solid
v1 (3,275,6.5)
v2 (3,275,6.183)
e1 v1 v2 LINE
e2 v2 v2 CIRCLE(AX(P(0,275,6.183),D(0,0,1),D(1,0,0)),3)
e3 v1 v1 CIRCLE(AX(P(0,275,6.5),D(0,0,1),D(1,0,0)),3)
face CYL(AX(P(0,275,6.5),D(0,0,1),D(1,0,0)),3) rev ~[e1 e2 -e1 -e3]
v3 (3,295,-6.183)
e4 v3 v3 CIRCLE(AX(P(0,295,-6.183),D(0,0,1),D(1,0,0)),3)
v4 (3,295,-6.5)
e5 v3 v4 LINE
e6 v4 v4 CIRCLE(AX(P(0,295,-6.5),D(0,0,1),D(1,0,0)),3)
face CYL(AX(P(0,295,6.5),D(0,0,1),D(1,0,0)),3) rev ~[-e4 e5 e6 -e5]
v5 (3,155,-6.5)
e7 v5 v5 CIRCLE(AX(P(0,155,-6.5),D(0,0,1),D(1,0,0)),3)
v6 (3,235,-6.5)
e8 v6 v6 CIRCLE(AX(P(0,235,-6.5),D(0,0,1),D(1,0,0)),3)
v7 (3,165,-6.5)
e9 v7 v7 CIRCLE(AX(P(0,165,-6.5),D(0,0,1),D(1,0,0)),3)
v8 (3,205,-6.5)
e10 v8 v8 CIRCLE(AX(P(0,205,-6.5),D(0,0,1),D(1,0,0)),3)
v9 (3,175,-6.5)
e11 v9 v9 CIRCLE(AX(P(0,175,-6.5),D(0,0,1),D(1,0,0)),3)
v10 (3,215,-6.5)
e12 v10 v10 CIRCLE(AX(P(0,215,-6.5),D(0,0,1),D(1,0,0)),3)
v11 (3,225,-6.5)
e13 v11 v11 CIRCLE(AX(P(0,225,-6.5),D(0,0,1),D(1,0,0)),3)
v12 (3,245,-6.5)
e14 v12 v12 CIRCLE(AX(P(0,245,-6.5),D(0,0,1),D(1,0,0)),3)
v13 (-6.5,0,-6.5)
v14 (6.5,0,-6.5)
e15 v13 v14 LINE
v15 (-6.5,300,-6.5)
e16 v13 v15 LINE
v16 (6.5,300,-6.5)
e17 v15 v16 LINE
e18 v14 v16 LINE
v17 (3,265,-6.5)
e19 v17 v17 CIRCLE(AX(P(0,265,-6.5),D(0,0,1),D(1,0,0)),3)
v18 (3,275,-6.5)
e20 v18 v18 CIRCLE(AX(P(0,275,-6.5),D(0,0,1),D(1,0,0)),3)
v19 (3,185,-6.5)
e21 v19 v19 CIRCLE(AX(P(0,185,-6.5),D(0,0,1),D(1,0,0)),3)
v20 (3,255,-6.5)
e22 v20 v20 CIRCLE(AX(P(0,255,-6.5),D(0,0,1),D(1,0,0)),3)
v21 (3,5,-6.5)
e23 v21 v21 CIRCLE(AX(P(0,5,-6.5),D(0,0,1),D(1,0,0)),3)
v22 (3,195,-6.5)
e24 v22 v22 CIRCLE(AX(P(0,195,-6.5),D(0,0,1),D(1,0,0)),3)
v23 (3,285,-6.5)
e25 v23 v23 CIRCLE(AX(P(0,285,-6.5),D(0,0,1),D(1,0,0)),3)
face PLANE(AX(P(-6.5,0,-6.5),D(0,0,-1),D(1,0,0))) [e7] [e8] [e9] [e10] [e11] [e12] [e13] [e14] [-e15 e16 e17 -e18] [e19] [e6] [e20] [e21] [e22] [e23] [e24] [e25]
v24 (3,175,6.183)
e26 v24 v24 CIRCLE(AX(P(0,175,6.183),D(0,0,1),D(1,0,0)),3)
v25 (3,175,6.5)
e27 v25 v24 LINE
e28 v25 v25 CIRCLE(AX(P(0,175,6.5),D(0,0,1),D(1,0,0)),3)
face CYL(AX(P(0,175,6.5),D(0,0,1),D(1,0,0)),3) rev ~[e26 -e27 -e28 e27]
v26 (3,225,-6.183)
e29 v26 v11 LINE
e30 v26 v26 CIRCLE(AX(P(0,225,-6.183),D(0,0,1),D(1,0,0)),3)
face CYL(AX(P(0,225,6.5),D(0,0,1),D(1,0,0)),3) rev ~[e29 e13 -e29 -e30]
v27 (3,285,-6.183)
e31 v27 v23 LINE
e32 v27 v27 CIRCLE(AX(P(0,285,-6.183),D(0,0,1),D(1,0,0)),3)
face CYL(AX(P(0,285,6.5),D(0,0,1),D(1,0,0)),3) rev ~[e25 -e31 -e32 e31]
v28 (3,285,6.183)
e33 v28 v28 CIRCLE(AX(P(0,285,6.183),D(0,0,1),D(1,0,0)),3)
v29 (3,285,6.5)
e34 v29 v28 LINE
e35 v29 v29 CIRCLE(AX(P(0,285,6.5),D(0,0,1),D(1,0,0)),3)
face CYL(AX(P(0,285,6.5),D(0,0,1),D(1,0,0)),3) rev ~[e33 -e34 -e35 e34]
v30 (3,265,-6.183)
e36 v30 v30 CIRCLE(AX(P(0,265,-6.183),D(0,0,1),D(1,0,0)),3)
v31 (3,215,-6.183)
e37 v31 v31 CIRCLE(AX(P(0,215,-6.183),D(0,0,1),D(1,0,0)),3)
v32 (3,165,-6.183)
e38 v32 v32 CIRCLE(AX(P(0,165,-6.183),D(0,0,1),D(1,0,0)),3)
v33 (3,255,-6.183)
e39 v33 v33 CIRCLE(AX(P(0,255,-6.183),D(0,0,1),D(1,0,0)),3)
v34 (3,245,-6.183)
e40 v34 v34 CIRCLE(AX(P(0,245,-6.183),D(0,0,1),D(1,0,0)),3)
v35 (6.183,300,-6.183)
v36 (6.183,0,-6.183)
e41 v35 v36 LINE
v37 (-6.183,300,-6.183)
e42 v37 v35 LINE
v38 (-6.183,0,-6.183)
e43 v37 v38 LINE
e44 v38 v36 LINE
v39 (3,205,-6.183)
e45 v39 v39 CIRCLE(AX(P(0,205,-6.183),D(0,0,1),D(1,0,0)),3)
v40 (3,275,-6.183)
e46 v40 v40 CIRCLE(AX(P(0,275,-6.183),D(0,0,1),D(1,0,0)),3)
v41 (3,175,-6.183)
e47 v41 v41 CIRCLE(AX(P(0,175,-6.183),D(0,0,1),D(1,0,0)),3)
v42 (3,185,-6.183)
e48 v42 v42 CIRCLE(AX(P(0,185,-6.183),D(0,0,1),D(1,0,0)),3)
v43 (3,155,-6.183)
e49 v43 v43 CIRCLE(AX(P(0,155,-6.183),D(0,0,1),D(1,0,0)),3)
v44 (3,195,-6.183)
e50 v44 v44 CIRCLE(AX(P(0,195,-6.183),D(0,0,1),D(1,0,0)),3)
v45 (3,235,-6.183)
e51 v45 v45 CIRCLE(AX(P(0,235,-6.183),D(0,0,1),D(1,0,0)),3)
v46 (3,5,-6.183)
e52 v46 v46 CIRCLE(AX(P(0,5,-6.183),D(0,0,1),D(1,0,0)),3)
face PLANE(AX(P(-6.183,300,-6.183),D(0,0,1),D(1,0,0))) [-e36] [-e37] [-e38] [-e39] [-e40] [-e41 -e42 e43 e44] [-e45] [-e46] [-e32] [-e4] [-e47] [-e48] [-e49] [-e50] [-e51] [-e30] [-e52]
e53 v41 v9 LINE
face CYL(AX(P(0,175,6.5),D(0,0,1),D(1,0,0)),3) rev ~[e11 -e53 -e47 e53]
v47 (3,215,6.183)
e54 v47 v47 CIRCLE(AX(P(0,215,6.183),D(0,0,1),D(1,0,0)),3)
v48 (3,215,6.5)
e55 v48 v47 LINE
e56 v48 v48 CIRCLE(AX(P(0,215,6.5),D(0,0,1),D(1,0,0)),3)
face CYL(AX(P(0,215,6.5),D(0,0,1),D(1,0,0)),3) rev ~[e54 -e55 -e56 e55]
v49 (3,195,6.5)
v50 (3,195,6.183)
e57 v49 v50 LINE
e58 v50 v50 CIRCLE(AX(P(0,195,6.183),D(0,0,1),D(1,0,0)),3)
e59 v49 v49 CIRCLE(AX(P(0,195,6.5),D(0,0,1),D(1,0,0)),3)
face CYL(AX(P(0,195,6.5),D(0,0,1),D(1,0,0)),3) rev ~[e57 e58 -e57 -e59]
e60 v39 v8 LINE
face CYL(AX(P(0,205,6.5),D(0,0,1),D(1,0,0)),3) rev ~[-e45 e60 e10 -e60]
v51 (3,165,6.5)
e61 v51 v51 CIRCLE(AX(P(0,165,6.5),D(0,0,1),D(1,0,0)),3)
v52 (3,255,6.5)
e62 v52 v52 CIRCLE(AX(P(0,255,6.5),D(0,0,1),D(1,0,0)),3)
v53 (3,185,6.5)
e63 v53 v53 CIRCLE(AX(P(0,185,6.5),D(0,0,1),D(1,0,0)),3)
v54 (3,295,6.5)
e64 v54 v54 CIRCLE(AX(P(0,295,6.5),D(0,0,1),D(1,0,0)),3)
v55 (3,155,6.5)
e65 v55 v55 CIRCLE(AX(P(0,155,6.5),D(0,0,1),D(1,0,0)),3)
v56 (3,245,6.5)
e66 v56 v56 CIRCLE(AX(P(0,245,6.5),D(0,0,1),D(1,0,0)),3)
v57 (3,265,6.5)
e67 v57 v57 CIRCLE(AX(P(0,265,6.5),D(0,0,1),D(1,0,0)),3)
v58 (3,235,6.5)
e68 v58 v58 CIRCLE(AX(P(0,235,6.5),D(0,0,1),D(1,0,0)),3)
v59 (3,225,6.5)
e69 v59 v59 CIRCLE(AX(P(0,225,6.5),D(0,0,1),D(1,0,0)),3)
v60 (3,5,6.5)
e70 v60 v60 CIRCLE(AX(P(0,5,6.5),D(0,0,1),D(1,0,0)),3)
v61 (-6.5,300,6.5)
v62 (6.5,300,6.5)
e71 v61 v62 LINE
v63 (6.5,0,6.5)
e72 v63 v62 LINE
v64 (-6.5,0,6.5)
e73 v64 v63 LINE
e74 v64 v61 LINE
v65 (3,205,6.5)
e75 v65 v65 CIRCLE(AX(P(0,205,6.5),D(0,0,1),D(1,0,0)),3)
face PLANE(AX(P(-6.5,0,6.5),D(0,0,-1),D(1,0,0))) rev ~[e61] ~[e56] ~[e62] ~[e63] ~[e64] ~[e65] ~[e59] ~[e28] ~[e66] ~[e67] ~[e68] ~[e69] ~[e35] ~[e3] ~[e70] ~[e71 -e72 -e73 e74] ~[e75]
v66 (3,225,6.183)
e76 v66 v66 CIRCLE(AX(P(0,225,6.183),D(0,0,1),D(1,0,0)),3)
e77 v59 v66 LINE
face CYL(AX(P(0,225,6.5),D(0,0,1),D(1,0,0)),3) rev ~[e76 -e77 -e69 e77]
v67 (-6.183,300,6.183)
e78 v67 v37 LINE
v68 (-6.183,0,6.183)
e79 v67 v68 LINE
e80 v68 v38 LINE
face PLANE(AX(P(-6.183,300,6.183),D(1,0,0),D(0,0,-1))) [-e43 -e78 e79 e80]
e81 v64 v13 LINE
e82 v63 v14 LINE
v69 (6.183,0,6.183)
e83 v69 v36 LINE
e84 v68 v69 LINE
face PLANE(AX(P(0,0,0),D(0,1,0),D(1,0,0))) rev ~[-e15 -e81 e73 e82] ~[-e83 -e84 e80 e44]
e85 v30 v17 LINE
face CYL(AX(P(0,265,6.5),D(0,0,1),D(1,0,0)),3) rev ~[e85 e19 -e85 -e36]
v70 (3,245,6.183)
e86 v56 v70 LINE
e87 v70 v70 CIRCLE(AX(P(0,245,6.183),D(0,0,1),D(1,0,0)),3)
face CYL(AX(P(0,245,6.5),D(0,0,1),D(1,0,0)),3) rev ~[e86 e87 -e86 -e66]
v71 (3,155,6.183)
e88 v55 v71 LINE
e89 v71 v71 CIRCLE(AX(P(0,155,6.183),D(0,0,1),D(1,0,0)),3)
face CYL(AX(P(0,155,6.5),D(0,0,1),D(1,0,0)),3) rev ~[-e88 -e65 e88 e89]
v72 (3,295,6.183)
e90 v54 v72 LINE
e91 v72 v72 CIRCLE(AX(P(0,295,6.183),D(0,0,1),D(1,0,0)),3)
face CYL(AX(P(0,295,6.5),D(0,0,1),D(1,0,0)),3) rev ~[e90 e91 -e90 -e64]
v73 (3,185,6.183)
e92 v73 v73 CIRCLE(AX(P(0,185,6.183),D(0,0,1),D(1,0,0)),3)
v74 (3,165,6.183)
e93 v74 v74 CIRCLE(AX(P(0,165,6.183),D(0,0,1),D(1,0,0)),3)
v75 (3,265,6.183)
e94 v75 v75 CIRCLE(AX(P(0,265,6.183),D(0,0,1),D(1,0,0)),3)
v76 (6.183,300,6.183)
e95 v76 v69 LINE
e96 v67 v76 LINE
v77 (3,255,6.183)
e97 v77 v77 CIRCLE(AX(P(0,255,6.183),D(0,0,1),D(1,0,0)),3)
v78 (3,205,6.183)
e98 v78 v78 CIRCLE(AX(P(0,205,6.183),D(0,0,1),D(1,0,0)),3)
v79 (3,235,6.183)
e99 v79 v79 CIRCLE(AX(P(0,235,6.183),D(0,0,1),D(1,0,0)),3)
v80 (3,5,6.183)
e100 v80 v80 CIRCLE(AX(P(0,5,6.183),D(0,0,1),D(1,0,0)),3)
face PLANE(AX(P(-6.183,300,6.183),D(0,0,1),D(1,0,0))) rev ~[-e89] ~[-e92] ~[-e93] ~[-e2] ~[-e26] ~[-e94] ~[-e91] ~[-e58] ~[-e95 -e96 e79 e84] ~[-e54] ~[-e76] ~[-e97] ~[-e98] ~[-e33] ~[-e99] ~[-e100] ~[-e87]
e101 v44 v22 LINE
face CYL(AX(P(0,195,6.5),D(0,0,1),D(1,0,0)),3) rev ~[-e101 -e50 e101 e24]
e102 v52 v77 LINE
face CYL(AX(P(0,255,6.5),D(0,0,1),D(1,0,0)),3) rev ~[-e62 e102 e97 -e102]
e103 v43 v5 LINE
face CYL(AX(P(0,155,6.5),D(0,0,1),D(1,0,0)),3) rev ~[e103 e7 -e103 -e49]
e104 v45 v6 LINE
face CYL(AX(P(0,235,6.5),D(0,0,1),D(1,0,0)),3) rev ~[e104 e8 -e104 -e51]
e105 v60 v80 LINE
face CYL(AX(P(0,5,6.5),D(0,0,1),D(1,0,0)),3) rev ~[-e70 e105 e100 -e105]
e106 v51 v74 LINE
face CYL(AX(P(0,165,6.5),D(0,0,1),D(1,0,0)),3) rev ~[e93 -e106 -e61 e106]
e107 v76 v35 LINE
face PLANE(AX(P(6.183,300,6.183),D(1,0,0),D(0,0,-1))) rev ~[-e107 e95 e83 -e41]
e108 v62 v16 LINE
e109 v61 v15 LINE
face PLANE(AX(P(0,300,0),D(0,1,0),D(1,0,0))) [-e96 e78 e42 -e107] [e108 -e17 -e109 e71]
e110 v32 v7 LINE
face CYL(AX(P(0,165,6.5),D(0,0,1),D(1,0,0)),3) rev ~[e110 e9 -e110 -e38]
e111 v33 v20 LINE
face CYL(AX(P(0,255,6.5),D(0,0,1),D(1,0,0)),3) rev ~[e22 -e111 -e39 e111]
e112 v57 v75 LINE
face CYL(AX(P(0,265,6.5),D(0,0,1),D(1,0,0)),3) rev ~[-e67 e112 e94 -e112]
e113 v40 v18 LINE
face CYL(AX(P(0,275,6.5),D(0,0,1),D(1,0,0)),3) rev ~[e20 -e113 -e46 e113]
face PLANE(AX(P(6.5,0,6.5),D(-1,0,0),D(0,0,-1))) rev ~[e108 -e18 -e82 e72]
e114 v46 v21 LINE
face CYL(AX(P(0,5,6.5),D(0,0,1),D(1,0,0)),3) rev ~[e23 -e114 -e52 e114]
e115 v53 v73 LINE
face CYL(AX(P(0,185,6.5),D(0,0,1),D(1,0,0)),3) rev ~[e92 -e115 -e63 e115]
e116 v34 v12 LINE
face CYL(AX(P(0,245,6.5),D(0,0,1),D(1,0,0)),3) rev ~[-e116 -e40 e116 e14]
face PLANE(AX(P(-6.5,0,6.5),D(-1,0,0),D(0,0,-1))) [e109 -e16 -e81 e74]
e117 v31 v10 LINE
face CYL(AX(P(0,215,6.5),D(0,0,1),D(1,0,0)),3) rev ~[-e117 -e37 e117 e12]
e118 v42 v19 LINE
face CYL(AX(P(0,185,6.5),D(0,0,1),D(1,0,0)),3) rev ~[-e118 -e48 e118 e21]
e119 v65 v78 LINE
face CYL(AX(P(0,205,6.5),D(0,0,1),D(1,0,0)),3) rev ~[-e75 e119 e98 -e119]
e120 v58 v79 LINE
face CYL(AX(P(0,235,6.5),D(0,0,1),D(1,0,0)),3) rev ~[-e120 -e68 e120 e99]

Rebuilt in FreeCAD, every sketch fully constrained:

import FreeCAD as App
import Part
import Sketcher
from FreeCAD import Vector
Q = App.Units.Quantity

doc = App.newDocument("Part")
params = doc.addObject("Spreadsheet::Sheet", "Params")
for row, (alias, value) in enumerate([
    ("sketch1_width", "13 mm"),
    ("pad1_length", "300 mm"),
    ("pocket1_length", "500 mm"),
    ("sketch3_diameter", "6 mm"),
    ("pocket2_length", "500 mm"),
    ("sketch4_diameter", "6 mm"),
    ("pocket3_length", "500 mm"),
], start=1):
    params.set(f"A{row}", alias)
    params.set(f"B{row}", "=" + value)
    params.setAlias(f"B{row}", alias)

body = doc.addObject("PartDesign::Body", "Body")

# Sketch on XZ plane
sketch1 = body.newObject("Sketcher::SketchObject", "Sketch")
sketch1.AttachmentSupport = (doc.getObject("XZ_Plane"), [""])
sketch1.MapMode = "FlatFace"
sketch1.addGeometry([
    Part.LineSegment(Vector(-6, -6, 0), Vector(-6, 6, 0)),
    Part.LineSegment(Vector(-6, 6, 0), Vector(6, 6, 0)),
    Part.LineSegment(Vector(6, 6, 0), Vector(6, -6, 0)),
    Part.LineSegment(Vector(6, -6, 0), Vector(-6, -6, 0)),
], False)
sketch1.addConstraint([
    Sketcher.Constraint("Coincident", 0, 2, 1, 1),
    Sketcher.Constraint("Coincident", 1, 2, 2, 1),
    Sketcher.Constraint("Coincident", 2, 2, 3, 1),
    Sketcher.Constraint("Coincident", 3, 2, 0, 1),
    Sketcher.Constraint("Vertical", 0),
    Sketcher.Constraint("Horizontal", 1),
    Sketcher.Constraint("Vertical", 2),
    Sketcher.Constraint("Horizontal", 3),
    Sketcher.Constraint("Symmetric", 0, 2, 2, 2, -1, 1),
    Sketcher.Constraint("Equal", 3, 0),
    Sketcher.Constraint("DistanceX", 1, 1, 1, 2, Q("13 mm")),
])
sketch1.setExpression("Constraints[10]", "Params.sketch1_width")
pad1 = body.newObject("PartDesign::Pad", "Pad")
pad1.Profile = sketch1
pad1.setExpression("Length", "Params.pad1_length")
pad1.Reversed = True

# Sketch on XZ plane
sketch2 = body.newObject("Sketcher::SketchObject", "Sketch001")
sketch2.AttachmentSupport = (doc.getObject("XZ_Plane"), [""])
sketch2.MapMode = "FlatFace"
sketch2.AttachmentOffset = App.Placement(Vector(0, 0, -300), App.Rotation())
sketch2.addGeometry([
    Part.LineSegment(Vector(-6, -6, 0), Vector(-6, 6, 0)),
    Part.LineSegment(Vector(-6, 6, 0), Vector(6, 6, 0)),
    Part.LineSegment(Vector(6, 6, 0), Vector(6, -6, 0)),
    Part.LineSegment(Vector(6, -6, 0), Vector(-6, -6, 0)),
], False)
sketch2.addConstraint([
    Sketcher.Constraint("Coincident", 0, 2, 1, 1),
    Sketcher.Constraint("Coincident", 1, 2, 2, 1),
    Sketcher.Constraint("Coincident", 2, 2, 3, 1),
    Sketcher.Constraint("Coincident", 3, 2, 0, 1),
    Sketcher.Constraint("Vertical", 0),
    Sketcher.Constraint("Horizontal", 1),
    Sketcher.Constraint("Vertical", 2),
    Sketcher.Constraint("Horizontal", 3),
    Sketcher.Constraint("Symmetric", 0, 2, 2, 2, -1, 1),
    Sketcher.Constraint("Equal", 3, 0),
    Sketcher.Constraint("DistanceX", 1, 1, 1, 2, Q("12.366 mm")),
])
pocket1 = body.newObject("PartDesign::Pocket", "Pocket")
pocket1.Profile = sketch2
pocket1.setExpression("Length", "Params.pocket1_length")
pocket1.Reversed = True

# Sketch on XY plane
sketch3 = body.newObject("Sketcher::SketchObject", "Sketch002")
sketch3.AttachmentSupport = (doc.getObject("XY_Plane"), [""])
sketch3.MapMode = "FlatFace"
sketch3.AttachmentOffset = App.Placement(Vector(0, 0, 6.5), App.Rotation())
sketch3.addGeometry(Part.Circle(Vector(0, 5, 0), Vector(0, 0, 1), 3), False)
sketch3.addConstraint([
    Sketcher.Constraint("PointOnObject", 0, 3, -2),
    Sketcher.Constraint("Diameter", 0, Q("6 mm")),
    Sketcher.Constraint("DistanceY", -1, 1, 0, 3, Q("5 mm")),
])
sketch3.setExpression("Constraints[1]", "Params.sketch3_diameter")
pocket2 = body.newObject("PartDesign::Pocket", "Pocket001")
pocket2.Profile = sketch3
pocket2.setExpression("Length", "Params.pocket2_length")

# Sketch on XY plane
sketch4 = body.newObject("Sketcher::SketchObject", "Sketch003")
sketch4.AttachmentSupport = (doc.getObject("XY_Plane"), [""])
sketch4.MapMode = "FlatFace"
sketch4.AttachmentOffset = App.Placement(Vector(0, 0, 6.5), App.Rotation())
sketch4.addGeometry([
    Part.Circle(Vector(0, 295, 0), Vector(0, 0, 1), 3),  # 0
    Part.Circle(Vector(0, 285, 0), Vector(0, 0, 1), 3),  # 1
    Part.Circle(Vector(0, 275, 0), Vector(0, 0, 1), 3),  # 2
    Part.Circle(Vector(0, 265, 0), Vector(0, 0, 1), 3),  # 3
    Part.Circle(Vector(0, 255, 0), Vector(0, 0, 1), 3),  # 4
    Part.Circle(Vector(0, 245, 0), Vector(0, 0, 1), 3),  # 5
    Part.Circle(Vector(0, 235, 0), Vector(0, 0, 1), 3),  # 6
    Part.Circle(Vector(0, 225, 0), Vector(0, 0, 1), 3),  # 7
    Part.Circle(Vector(0, 215, 0), Vector(0, 0, 1), 3),  # 8
    Part.Circle(Vector(0, 205, 0), Vector(0, 0, 1), 3),  # 9
    Part.Circle(Vector(0, 195, 0), Vector(0, 0, 1), 3),  # 10
    Part.Circle(Vector(0, 185, 0), Vector(0, 0, 1), 3),  # 11
    Part.Circle(Vector(0, 175, 0), Vector(0, 0, 1), 3),  # 12
    Part.Circle(Vector(0, 165, 0), Vector(0, 0, 1), 3),  # 13
    Part.Circle(Vector(0, 155, 0), Vector(0, 0, 1), 3),  # 14
], False)
sketch4.addConstraint([
    Sketcher.Constraint("Equal", 0, 1),
    Sketcher.Constraint("Equal", 1, 2),
    Sketcher.Constraint("Equal", 2, 3),
    Sketcher.Constraint("Equal", 3, 4),
    Sketcher.Constraint("Equal", 4, 5),
    Sketcher.Constraint("Equal", 5, 6),
    Sketcher.Constraint("Equal", 6, 7),
    Sketcher.Constraint("Equal", 7, 8),
    Sketcher.Constraint("Equal", 8, 9),
    Sketcher.Constraint("Equal", 9, 10),
    Sketcher.Constraint("Equal", 10, 11),
    Sketcher.Constraint("Equal", 11, 12),
    Sketcher.Constraint("Equal", 12, 13),
    Sketcher.Constraint("Equal", 13, 14),
    Sketcher.Constraint("PointOnObject", 0, 3, -2),
    Sketcher.Constraint("PointOnObject", 1, 3, -2),
    Sketcher.Constraint("PointOnObject", 2, 3, -2),
    Sketcher.Constraint("PointOnObject", 3, 3, -2),
    Sketcher.Constraint("PointOnObject", 4, 3, -2),
    Sketcher.Constraint("PointOnObject", 5, 3, -2),
    Sketcher.Constraint("PointOnObject", 6, 3, -2),
    Sketcher.Constraint("PointOnObject", 7, 3, -2),
    Sketcher.Constraint("PointOnObject", 8, 3, -2),
    Sketcher.Constraint("PointOnObject", 9, 3, -2),
    Sketcher.Constraint("PointOnObject", 10, 3, -2),
    Sketcher.Constraint("PointOnObject", 11, 3, -2),
    Sketcher.Constraint("PointOnObject", 12, 3, -2),
    Sketcher.Constraint("PointOnObject", 13, 3, -2),
    Sketcher.Constraint("PointOnObject", 14, 3, -2),
    Sketcher.Constraint("Diameter", 0, Q("6 mm")),
    Sketcher.Constraint("DistanceY", -1, 1, 0, 3, Q("295 mm")),
    Sketcher.Constraint("DistanceY", -1, 1, 1, 3, Q("285 mm")),
    Sketcher.Constraint("DistanceY", -1, 1, 2, 3, Q("275 mm")),
    Sketcher.Constraint("DistanceY", -1, 1, 3, 3, Q("265 mm")),
    Sketcher.Constraint("DistanceY", -1, 1, 4, 3, Q("255 mm")),
    Sketcher.Constraint("DistanceY", -1, 1, 5, 3, Q("245 mm")),
    Sketcher.Constraint("DistanceY", -1, 1, 6, 3, Q("235 mm")),
    Sketcher.Constraint("DistanceY", -1, 1, 7, 3, Q("225 mm")),
    Sketcher.Constraint("DistanceY", -1, 1, 8, 3, Q("215 mm")),
    Sketcher.Constraint("DistanceY", -1, 1, 9, 3, Q("205 mm")),
    Sketcher.Constraint("DistanceY", -1, 1, 10, 3, Q("195 mm")),
    Sketcher.Constraint("DistanceY", -1, 1, 11, 3, Q("185 mm")),
    Sketcher.Constraint("DistanceY", -1, 1, 12, 3, Q("175 mm")),
    Sketcher.Constraint("DistanceY", -1, 1, 13, 3, Q("165 mm")),
    Sketcher.Constraint("DistanceY", -1, 1, 14, 3, Q("155 mm")),
])
sketch4.setExpression("Constraints[29]", "Params.sketch4_diameter")
pocket3 = body.newObject("PartDesign::Pocket", "Pocket002")
pocket3.Profile = sketch4
pocket3.setExpression("Length", "Params.pocket3_length")

doc.recompute()
